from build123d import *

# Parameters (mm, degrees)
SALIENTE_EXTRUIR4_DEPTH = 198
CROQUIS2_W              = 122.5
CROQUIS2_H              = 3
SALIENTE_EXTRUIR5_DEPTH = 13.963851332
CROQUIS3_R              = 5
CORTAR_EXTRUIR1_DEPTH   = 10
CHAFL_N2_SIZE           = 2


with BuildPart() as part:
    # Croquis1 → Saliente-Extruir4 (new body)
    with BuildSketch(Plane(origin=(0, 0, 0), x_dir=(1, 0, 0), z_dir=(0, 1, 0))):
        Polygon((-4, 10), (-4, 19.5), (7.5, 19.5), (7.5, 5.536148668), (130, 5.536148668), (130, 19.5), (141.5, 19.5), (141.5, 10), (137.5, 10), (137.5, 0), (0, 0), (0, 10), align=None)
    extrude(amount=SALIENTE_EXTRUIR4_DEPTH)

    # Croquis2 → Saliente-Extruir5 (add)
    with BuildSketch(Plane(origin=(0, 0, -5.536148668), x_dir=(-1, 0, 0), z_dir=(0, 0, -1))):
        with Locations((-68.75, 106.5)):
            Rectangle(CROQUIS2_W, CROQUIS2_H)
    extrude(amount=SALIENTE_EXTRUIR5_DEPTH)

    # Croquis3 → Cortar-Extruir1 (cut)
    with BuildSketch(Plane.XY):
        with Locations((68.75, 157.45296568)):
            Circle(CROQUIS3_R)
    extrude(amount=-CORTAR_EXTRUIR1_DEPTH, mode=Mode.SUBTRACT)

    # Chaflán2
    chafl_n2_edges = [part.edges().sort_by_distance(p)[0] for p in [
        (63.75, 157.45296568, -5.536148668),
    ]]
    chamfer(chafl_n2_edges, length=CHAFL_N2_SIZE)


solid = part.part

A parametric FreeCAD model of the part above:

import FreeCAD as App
import Part
import Sketcher
from FreeCAD import Vector
Q = App.Units.Quantity


def edges_at(feature, points):
    """Names of the edges that pass closest to the given points."""
    edges = feature.Shape.Edges
    near = lambda p: min(range(len(edges)), key=lambda i: edges[i].distToShape(Part.Vertex(*p))[0])
    return sorted({f"Edge{near(p) + 1}" for p in points})

doc = App.newDocument("Part")
body = doc.addObject("PartDesign::Body", "Body")

# Sketch on XZ plane
sketch1 = body.newObject("Sketcher::SketchObject", "Sketch")
sketch1.AttachmentSupport = (doc.getObject("XZ_Plane"), [""])
sketch1.MapMode = "FlatFace"
sketch1.addGeometry(Part.LineSegment(Vector(-4, -19.5, 0), Vector(-4, -10, 0)), False)
sketch1.addGeometry(Part.LineSegment(Vector(-4, -10, 0), Vector(0, -10, 0)), False)
sketch1.addGeometry(Part.LineSegment(Vector(0, -10, 0), Vector(0, 0, 0)), False)
sketch1.addGeometry(Part.LineSegment(Vector(0, 0, 0), Vector(137.5, 0, 0)), False)
sketch1.addGeometry(Part.LineSegment(Vector(137.5, 0, 0), Vector(137.5, -10, 0)), False)
sketch1.addGeometry(Part.LineSegment(Vector(137.5, -10, 0), Vector(141.5, -10, 0)), False)
sketch1.addGeometry(Part.LineSegment(Vector(141.5, -10, 0), Vector(141.5, -19.5, 0)), False)
sketch1.addGeometry(Part.LineSegment(Vector(141.5, -19.5, 0), Vector(130, -19.5, 0)), False)
sketch1.addGeometry(Part.LineSegment(Vector(130, -19.5, 0), Vector(130, -5.5, 0)), False)
sketch1.addGeometry(Part.LineSegment(Vector(130, -5.5, 0), Vector(7.5, -5.5, 0)), False)
sketch1.addGeometry(Part.LineSegment(Vector(7.5, -5.5, 0), Vector(7.5, -19.5, 0)), False)
sketch1.addGeometry(Part.LineSegment(Vector(7.5, -19.5, 0), Vector(-4, -19.5, 0)), False)
sketch1.addConstraint(Sketcher.Constraint("Coincident", 0, 2, 1, 1))
sketch1.addConstraint(Sketcher.Constraint("Coincident", 1, 2, 2, 1))
sketch1.addConstraint(Sketcher.Constraint("Coincident", 2, 2, 3, 1))
sketch1.addConstraint(Sketcher.Constraint("Coincident", 3, 2, 4, 1))
sketch1.addConstraint(Sketcher.Constraint("Coincident", 4, 2, 5, 1))
sketch1.addConstraint(Sketcher.Constraint("Coincident", 5, 2, 6, 1))
sketch1.addConstraint(Sketcher.Constraint("Coincident", 6, 2, 7, 1))
sketch1.addConstraint(Sketcher.Constraint("Coincident", 7, 2, 8, 1))
sketch1.addConstraint(Sketcher.Constraint("Coincident", 8, 2, 9, 1))
sketch1.addConstraint(Sketcher.Constraint("Coincident", 9, 2, 10, 1))
sketch1.addConstraint(Sketcher.Constraint("Coincident", 10, 2, 11, 1))
sketch1.addConstraint(Sketcher.Constraint("Coincident", 11, 2, 0, 1))
sketch1.addConstraint(Sketcher.Constraint("Vertical", 0))
sketch1.addConstraint(Sketcher.Constraint("Horizontal", 1))
sketch1.addConstraint(Sketcher.Constraint("Vertical", 2))
sketch1.addConstraint(Sketcher.Constraint("Horizontal", 3))
sketch1.addConstraint(Sketcher.Constraint("Vertical", 4))
sketch1.addConstraint(Sketcher.Constraint("Horizontal", 5))
sketch1.addConstraint(Sketcher.Constraint("Vertical", 6))
sketch1.addConstraint(Sketcher.Constraint("Horizontal", 7))
sketch1.addConstraint(Sketcher.Constraint("Vertical", 8))
sketch1.addConstraint(Sketcher.Constraint("Horizontal", 9))
sketch1.addConstraint(Sketcher.Constraint("Vertical", 10))
sketch1.addConstraint(Sketcher.Constraint("Horizontal", 11))
sketch1.addConstraint(Sketcher.Constraint("Coincident", 2, 2, -1, 1))
sketch1.addConstraint(Sketcher.Constraint("Horizontal", 1, 2, 4, 2))
sketch1.addConstraint(Sketcher.Constraint("Horizontal", 7, 2, 10, 2))
sketch1.addConstraint(Sketcher.Constraint("Equal", 1, 5))
sketch1.addConstraint(Sketcher.Constraint("Equal", 7, 11))
sketch1.addConstraint(Sketcher.Constraint("DistanceX", 1, 1, 1, 2, Q("4 mm")))
sketch1.addConstraint(Sketcher.Constraint("DistanceY", 2, 1, 2, 2, Q("10 mm")))
sketch1.addConstraint(Sketcher.Constraint("DistanceX", 3, 1, 3, 2, Q("137.5 mm")))
sketch1.addConstraint(Sketcher.Constraint("DistanceX", 7, 2, 7, 1, Q("11.5 mm")))
sketch1.addConstraint(Sketcher.Constraint("DistanceY", 0, 1, 0, 2, Q("9.5 mm")))
sketch1.addConstraint(Sketcher.Constraint("DistanceY", 8, 1, 8, 2, Q("13.963851 mm")))
pad1 = body.newObject("PartDesign::Pad", "Pad")
pad1.Profile = sketch1
pad1.Length = 198
pad1.Reversed = True

# Sketch on XY plane
sketch2 = body.newObject("Sketcher::SketchObject", "Sketch001")
sketch2.AttachmentSupport = (doc.getObject("XY_Plane"), [""])
sketch2.MapMode = "FlatFace"
sketch2.AttachmentOffset = App.Placement(Vector(0, 0, -5.536149), App.Rotation())
sketch2.addGeometry(Part.LineSegment(Vector(130, 108, 0), Vector(130, 105, 0)), False)
sketch2.addGeometry(Part.LineSegment(Vector(130, 105, 0), Vector(7.5, 105, 0)), False)
sketch2.addGeometry(Part.LineSegment(Vector(7.5, 105, 0), Vector(7.5, 108, 0)), False)
sketch2.addGeometry(Part.LineSegment(Vector(7.5, 108, 0), Vector(130, 108, 0)), False)
sketch2.addConstraint(Sketcher.Constraint("Coincident", 0, 2, 1, 1))
sketch2.addConstraint(Sketcher.Constraint("Coincident", 1, 2, 2, 1))
sketch2.addConstraint(Sketcher.Constraint("Coincident", 2, 2, 3, 1))
sketch2.addConstraint(Sketcher.Constraint("Coincident", 3, 2, 0, 1))
sketch2.addConstraint(Sketcher.Constraint("Vertical", 0))
sketch2.addConstraint(Sketcher.Constraint("Horizontal", 1))
sketch2.addConstraint(Sketcher.Constraint("Vertical", 2))
sketch2.addConstraint(Sketcher.Constraint("Horizontal", 3))
sketch2.addConstraint(Sketcher.Constraint("DistanceY", 0, 2, 0, 1, Q("3 mm")))
sketch2.addConstraint(Sketcher.Constraint("DistanceX", 1, 2, 1, 1, Q("122.5 mm")))
sketch2.addConstraint(Sketcher.Constraint("DistanceX", -1, 1, 0, 2, Q("130 mm")))
sketch2.addConstraint(Sketcher.Constraint("DistanceY", -1, 1, 0, 2, Q("105 mm")))
pad2 = body.newObject("PartDesign::Pad", "Pad001")
pad2.Profile = sketch2
pad2.Length = 13.963851
pad2.Reversed = True

# Sketch on XY plane
sketch3 = body.newObject("Sketcher::SketchObject", "Sketch002")
sketch3.AttachmentSupport = (doc.getObject("XY_Plane"), [""])
sketch3.MapMode = "FlatFace"
sketch3.addGeometry(Part.Circle(Vector(69, 157, 0), Vector(0, 0, 1), 5), False)
sketch3.addConstraint(Sketcher.Constraint("Diameter", 0, Q("10 mm")))
sketch3.addConstraint(Sketcher.Constraint("DistanceX", -1, 1, 0, 3, Q("68.75 mm")))
sketch3.addConstraint(Sketcher.Constraint("DistanceY", -1, 1, 0, 3, Q("157.452966 mm")))
pocket1 = body.newObject("PartDesign::Pocket", "Pocket")
pocket1.Profile = sketch3
pocket1.Length = 10
doc.recompute()

chamfer = body.newObject("PartDesign::Chamfer", "Chamfer")
chamfer.Base = (pocket1, edges_at(pocket1, [(63.75, 157.453, -5.536)]))
chamfer.Size = 2

doc.recompute()
